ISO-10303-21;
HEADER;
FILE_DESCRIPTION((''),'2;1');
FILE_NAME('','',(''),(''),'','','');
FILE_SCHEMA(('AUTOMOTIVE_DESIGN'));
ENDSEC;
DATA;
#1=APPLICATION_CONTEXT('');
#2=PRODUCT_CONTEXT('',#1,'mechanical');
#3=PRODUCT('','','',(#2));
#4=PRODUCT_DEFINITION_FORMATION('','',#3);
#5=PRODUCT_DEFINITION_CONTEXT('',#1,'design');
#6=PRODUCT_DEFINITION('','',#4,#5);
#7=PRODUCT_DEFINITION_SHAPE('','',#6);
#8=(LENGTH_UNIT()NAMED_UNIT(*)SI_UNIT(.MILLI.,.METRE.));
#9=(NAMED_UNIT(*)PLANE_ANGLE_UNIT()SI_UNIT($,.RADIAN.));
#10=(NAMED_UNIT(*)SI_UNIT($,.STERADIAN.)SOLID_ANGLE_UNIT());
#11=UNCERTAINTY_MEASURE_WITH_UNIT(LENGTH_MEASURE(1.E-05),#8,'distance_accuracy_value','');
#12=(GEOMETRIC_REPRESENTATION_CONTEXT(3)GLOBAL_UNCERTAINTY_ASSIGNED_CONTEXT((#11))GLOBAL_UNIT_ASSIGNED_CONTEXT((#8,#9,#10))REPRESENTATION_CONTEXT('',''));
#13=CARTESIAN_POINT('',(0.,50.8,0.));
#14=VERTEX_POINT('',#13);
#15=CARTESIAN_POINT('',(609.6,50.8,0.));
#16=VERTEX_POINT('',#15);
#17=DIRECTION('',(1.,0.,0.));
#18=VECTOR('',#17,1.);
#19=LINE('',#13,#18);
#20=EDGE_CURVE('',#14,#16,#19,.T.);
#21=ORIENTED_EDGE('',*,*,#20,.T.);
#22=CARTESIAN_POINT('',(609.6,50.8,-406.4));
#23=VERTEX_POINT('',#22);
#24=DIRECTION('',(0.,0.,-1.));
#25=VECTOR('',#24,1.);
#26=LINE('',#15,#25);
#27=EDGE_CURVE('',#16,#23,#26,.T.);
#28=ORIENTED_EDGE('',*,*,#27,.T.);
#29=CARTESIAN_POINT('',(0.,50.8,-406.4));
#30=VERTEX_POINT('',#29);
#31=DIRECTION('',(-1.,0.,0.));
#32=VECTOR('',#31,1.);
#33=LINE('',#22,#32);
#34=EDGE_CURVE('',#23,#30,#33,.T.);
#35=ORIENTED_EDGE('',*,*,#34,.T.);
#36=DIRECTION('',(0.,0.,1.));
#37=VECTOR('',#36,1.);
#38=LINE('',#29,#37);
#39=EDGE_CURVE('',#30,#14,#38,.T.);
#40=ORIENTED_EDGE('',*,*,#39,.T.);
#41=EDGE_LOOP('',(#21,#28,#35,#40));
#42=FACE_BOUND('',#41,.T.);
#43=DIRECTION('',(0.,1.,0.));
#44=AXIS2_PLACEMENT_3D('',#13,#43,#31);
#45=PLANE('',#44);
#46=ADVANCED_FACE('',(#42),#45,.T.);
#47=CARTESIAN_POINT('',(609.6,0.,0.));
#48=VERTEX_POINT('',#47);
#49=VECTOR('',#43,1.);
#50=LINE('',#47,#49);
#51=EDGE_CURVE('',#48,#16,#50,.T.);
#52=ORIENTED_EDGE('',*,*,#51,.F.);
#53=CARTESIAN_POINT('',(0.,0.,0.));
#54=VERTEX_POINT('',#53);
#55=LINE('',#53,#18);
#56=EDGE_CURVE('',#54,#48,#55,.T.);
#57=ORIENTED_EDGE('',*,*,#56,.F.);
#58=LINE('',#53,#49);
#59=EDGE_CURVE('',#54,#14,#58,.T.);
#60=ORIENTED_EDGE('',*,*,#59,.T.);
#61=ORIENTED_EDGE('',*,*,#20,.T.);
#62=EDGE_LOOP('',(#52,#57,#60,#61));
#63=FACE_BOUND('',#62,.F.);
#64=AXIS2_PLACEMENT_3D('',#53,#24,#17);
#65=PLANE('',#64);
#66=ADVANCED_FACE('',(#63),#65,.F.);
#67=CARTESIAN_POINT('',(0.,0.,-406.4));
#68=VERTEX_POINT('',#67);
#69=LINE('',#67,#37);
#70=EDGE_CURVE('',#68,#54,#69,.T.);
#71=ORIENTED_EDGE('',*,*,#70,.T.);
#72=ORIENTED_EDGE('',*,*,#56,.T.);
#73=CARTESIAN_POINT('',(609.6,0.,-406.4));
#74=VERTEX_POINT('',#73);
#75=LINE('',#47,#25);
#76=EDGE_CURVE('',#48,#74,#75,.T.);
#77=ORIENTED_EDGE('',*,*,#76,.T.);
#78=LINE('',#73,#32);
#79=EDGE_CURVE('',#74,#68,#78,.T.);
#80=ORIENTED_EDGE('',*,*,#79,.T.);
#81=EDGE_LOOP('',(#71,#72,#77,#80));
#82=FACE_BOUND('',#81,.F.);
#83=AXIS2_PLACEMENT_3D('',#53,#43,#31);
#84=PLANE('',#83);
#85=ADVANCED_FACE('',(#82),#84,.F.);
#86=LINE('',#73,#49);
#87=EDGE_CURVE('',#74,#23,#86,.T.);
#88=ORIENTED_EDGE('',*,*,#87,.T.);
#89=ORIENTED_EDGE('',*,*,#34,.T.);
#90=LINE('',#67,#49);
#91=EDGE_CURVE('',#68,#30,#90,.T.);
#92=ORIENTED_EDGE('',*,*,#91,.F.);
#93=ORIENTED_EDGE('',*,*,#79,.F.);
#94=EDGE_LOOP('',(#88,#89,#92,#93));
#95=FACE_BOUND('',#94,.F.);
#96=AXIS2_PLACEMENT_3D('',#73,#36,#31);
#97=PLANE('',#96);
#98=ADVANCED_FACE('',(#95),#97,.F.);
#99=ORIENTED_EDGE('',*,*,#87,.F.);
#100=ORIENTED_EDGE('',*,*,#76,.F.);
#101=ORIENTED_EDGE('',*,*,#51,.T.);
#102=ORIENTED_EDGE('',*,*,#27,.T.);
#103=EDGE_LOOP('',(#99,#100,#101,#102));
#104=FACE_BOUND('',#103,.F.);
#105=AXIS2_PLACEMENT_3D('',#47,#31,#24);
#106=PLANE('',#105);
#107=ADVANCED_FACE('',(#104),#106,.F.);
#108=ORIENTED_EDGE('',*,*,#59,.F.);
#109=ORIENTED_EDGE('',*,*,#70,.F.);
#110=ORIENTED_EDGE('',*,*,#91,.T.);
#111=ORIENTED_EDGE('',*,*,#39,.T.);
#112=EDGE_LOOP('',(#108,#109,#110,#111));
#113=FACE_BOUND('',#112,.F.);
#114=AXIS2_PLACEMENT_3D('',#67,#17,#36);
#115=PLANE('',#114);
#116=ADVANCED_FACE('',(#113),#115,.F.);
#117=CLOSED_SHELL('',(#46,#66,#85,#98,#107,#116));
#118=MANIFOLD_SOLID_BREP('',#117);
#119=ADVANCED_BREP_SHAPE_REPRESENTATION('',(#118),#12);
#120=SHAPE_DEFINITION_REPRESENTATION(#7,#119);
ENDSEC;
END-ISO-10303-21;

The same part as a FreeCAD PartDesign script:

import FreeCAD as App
import Part
import Sketcher
from FreeCAD import Vector
Q = App.Units.Quantity


def add_polygon(sketch, points):
    """Adds a closed chain of lines whose ends are joined by coincident constraints."""
    first, n = sketch.GeometryCount, len(points)
    for a, b in zip(points, points[1:] + points[:1]):
        sketch.addGeometry(Part.LineSegment(App.Vector(*a, 0), App.Vector(*b, 0)), False)
    for i in range(n):
        sketch.addConstraint(Sketcher.Constraint("Coincident", first + i, 2, first + (i + 1) % n, 1))

doc = App.newDocument("Part")
body = doc.addObject("PartDesign::Body", "Body")

sketch1 = doc.addObject("Sketcher::SketchObject", "Sketch")
body.addObject(sketch1)
sketch1.AttachmentSupport = (doc.XZ_Plane, [""])
sketch1.MapMode = "FlatFace"
add_polygon(sketch1, [(0, -406), (0, 0), (610, 0), (610, -406)])
sketch1.addConstraint([
    Sketcher.Constraint("Vertical", 0),
    Sketcher.Constraint("Horizontal", 1),
    Sketcher.Constraint("Vertical", 2),
    Sketcher.Constraint("Horizontal", 3),
    Sketcher.Constraint("Coincident", 0, 2, -1, 1),
    Sketcher.Constraint("DistanceX", 1, 1, 1, 2, Q("24 in")),
    Sketcher.Constraint("DistanceY", 0, 1, 0, 2, Q("16 in")),
])
pad1 = doc.addObject("PartDesign::Pad", "Pad")
body.addObject(pad1)
pad1.Profile = sketch1
pad1.Length = Q("2 in")
pad1.Reversed = True

doc.recompute()
